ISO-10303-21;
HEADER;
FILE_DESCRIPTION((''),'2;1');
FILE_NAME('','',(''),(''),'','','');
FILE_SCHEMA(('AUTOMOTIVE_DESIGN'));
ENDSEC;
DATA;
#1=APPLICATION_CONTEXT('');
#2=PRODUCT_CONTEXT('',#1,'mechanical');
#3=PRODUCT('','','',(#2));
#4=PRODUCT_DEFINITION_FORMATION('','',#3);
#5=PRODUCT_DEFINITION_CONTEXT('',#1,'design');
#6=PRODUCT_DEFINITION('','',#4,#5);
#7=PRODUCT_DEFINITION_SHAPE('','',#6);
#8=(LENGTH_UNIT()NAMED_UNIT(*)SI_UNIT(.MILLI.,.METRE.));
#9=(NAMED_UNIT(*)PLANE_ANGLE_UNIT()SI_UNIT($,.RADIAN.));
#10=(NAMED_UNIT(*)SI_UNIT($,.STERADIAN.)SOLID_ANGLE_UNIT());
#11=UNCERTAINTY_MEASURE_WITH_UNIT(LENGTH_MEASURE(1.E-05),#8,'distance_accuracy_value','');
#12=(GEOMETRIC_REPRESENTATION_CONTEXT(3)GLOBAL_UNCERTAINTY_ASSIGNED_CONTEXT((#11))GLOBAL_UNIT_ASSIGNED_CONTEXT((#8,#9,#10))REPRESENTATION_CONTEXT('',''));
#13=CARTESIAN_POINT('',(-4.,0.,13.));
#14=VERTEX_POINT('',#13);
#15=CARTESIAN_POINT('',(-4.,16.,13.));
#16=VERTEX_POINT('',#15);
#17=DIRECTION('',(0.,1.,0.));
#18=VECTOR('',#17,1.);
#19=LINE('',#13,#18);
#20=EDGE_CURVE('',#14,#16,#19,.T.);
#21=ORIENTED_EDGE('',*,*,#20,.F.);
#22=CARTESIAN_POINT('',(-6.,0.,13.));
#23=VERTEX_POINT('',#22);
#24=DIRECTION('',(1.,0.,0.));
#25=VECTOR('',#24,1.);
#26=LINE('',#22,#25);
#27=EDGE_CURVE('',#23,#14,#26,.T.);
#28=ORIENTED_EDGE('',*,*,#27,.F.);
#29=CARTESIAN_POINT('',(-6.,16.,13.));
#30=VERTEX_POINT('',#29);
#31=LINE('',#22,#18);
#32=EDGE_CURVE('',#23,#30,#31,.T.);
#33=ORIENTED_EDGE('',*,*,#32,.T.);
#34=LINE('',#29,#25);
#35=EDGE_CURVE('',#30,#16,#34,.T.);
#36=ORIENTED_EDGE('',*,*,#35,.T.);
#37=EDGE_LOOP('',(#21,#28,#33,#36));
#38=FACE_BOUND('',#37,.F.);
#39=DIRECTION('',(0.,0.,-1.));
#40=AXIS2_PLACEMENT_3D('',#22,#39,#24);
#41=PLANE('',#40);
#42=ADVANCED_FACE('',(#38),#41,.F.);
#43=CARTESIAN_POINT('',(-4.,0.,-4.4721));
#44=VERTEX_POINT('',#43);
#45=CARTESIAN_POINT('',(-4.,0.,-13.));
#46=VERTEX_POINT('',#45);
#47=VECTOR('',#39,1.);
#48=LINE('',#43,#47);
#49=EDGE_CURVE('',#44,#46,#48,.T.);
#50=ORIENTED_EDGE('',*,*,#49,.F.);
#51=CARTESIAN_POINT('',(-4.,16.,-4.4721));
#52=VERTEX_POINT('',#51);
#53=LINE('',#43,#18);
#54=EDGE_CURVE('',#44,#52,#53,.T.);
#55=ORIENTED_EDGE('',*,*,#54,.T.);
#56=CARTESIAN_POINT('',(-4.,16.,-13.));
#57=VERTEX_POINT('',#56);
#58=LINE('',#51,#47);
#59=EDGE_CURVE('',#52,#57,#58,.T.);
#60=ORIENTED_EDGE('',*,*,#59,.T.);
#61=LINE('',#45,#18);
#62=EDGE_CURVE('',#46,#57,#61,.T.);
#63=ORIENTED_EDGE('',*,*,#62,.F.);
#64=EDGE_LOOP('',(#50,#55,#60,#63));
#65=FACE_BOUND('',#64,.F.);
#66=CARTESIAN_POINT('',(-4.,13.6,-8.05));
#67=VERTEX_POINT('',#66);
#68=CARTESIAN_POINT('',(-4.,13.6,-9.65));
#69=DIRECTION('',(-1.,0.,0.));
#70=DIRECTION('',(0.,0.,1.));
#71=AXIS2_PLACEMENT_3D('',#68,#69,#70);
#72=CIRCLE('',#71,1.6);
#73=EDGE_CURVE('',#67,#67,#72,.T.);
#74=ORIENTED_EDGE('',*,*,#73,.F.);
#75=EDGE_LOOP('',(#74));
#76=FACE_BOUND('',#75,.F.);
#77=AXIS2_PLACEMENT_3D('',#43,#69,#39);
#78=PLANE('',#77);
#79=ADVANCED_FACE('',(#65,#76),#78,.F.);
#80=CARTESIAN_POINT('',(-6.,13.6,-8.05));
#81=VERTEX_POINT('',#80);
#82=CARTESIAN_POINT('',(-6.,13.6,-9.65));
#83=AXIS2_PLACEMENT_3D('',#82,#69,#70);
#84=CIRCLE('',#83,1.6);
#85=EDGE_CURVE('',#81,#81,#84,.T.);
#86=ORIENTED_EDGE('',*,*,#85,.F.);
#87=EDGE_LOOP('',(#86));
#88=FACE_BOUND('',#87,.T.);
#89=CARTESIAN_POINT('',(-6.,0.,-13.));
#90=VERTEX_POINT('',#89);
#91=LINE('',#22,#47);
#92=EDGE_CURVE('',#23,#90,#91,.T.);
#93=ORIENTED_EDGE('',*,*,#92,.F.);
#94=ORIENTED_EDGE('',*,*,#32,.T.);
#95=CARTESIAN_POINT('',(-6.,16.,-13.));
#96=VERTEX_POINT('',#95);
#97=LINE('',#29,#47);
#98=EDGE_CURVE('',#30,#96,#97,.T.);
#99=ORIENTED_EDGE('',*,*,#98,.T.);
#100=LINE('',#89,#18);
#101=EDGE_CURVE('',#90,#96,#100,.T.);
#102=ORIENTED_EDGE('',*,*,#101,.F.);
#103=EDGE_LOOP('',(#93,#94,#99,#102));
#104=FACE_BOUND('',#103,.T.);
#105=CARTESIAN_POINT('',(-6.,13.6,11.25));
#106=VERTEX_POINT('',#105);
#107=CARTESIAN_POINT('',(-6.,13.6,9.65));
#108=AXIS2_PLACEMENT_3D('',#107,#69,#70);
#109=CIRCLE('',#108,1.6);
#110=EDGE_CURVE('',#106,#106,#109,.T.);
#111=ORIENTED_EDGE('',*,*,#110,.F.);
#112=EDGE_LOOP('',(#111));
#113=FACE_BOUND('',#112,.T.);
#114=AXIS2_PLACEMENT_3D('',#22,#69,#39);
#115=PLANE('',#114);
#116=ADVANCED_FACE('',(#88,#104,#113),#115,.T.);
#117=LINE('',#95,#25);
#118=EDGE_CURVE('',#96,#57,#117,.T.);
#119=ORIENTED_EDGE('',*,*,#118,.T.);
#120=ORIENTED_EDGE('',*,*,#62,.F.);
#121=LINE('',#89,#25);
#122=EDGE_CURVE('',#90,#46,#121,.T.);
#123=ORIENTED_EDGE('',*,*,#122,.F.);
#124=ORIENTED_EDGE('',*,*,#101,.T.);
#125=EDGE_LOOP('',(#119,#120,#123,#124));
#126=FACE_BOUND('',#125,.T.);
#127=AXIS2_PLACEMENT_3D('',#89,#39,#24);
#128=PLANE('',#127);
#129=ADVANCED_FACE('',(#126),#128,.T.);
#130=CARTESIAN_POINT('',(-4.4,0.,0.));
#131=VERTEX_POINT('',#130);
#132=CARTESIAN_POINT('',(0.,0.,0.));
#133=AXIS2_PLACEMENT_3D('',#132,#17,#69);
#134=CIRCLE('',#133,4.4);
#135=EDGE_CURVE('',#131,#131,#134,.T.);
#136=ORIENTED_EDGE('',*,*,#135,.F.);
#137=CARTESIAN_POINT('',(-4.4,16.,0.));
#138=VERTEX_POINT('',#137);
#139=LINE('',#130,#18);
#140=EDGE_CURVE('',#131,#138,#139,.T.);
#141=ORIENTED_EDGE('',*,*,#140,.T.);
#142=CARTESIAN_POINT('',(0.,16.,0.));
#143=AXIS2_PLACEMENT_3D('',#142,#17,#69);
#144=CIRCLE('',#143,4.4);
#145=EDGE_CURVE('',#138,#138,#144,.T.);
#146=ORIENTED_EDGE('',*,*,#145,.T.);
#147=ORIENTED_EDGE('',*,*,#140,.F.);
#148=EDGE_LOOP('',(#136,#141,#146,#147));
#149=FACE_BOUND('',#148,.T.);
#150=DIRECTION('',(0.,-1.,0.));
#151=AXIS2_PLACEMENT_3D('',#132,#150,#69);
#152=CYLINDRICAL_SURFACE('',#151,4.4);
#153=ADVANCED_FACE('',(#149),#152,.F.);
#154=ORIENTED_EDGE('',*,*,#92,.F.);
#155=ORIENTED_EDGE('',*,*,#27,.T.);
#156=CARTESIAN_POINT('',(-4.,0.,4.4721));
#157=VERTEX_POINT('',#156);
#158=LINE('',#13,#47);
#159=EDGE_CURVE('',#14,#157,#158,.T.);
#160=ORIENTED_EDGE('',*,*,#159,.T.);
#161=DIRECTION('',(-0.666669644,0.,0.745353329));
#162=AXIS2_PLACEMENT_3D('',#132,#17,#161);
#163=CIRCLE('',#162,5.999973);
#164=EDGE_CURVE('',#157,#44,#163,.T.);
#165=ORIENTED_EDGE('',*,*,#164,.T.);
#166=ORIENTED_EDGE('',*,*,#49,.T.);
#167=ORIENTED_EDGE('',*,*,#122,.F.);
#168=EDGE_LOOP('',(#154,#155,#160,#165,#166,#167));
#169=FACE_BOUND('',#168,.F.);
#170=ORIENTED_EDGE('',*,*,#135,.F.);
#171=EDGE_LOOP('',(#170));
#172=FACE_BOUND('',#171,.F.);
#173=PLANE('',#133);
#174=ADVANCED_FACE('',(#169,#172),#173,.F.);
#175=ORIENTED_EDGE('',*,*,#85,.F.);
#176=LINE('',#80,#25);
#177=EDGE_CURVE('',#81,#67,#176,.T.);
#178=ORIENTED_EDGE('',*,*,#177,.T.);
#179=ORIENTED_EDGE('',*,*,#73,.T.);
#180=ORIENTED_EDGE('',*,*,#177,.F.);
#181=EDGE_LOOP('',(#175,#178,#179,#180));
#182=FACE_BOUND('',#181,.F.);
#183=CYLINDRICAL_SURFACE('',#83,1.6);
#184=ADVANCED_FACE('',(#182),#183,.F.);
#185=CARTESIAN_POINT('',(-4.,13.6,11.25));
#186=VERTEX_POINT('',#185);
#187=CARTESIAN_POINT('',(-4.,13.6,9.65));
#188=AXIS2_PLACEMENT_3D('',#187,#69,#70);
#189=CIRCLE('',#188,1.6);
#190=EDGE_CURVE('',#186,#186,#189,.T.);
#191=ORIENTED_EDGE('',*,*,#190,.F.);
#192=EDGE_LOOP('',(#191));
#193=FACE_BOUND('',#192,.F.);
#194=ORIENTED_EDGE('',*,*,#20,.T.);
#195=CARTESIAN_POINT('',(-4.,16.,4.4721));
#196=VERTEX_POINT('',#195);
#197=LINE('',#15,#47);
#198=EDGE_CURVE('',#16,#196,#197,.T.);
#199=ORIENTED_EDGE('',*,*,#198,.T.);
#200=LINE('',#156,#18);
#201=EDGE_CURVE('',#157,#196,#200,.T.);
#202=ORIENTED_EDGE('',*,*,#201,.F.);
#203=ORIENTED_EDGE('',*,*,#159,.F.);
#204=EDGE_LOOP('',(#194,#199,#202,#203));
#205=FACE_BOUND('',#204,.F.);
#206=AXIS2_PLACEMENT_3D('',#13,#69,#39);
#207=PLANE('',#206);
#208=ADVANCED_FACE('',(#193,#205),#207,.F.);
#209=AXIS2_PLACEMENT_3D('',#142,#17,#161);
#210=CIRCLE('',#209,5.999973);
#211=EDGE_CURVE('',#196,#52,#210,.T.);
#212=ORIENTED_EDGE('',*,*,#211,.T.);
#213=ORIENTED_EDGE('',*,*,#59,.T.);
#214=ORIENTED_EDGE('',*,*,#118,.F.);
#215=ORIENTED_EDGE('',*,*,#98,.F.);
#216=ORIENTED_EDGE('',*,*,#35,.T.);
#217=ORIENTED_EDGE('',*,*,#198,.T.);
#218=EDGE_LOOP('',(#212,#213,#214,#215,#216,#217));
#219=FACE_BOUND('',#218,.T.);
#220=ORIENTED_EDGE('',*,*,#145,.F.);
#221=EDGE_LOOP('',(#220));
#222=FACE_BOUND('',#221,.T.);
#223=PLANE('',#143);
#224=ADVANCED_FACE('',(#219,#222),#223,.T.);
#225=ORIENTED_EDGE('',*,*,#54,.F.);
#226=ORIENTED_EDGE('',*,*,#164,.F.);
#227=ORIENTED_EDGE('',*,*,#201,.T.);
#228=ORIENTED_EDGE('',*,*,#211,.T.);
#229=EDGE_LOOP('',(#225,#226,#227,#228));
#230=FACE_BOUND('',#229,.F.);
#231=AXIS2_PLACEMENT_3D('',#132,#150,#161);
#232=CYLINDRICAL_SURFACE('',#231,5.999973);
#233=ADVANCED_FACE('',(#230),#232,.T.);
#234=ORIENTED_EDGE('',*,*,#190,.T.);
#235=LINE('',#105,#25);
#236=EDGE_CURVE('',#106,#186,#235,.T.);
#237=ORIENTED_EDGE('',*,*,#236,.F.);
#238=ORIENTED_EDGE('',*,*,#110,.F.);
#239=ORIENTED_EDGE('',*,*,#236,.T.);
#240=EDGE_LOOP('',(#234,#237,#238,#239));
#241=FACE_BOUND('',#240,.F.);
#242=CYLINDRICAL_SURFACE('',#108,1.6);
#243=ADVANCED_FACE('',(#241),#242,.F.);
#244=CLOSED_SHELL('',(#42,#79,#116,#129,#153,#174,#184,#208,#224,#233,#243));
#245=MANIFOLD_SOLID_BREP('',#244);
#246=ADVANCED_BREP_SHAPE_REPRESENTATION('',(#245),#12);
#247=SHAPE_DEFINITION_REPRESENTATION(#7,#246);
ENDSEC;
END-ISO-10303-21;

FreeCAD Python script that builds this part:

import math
import FreeCAD as App
import Part
import Sketcher

V = App.Vector

doc = App.newDocument("Part")
body = doc.addObject("PartDesign::Body", "Body")

sketch1 = body.newObject("Sketcher::SketchObject", "Sketch")
sketch1.AttachmentSupport = (doc.getObject("XZ_Plane"), [""])
sketch1.MapMode = "FlatFace"
sketch1.addGeometry([
    Part.LineSegment(V(-6, -13, 0), V(-6, 13, 0)),
    Part.LineSegment(V(-6, 13, 0), V(-4, 13, 0)),
    Part.LineSegment(V(-4, 13, 0), V(-4, 4.5, 0)),
    Part.ArcOfCircle(Part.Circle(V(0, 0, 0), V(0, 0, 1), 6), math.radians(-132), math.radians(132)),
    Part.LineSegment(V(-4, -4.5, 0), V(-4, -13, 0)),
    Part.LineSegment(V(-4, -13, 0), V(-6, -13, 0)),
    Part.Circle(V(0, 0, 0), V(0, 0, 1), 4.4),
], False)
sketch1.addConstraint([
    Sketcher.Constraint("Coincident", 0, 2, 1, 1),
    Sketcher.Constraint("Coincident", 1, 2, 2, 1),
    Sketcher.Constraint("Coincident", 2, 2, 3, 2),
    Sketcher.Constraint("Coincident", 3, 1, 4, 1),
    Sketcher.Constraint("Coincident", 4, 2, 5, 1),
    Sketcher.Constraint("Coincident", 5, 2, 0, 1),
    Sketcher.Constraint("Vertical", 0),
    Sketcher.Constraint("Horizontal", 1),
    Sketcher.Constraint("Vertical", 2),
    Sketcher.Constraint("Vertical", 4),
    Sketcher.Constraint("Horizontal", 5),
    Sketcher.Constraint("Coincident", 3, 3, -1, 1),
    Sketcher.Constraint("Coincident", 6, 3, -1, 1),
    Sketcher.Constraint("Symmetric", 1, 2, 4, 2, -1),
    Sketcher.Constraint("Diameter", 6, 8.8),
    Sketcher.Constraint("DistanceX", 1, 1, 1, 2, 2.0),
    Sketcher.Constraint("DistanceY", 0, 1, 0, 2, 26.0),
    Sketcher.Constraint("Radius", 3, 6.0),
    Sketcher.Constraint("DistanceX", 0, 2, -1, 1, 6.0),
])
pad1 = body.newObject("PartDesign::Pad", "Pad")
pad1.Profile = sketch1
pad1.Length = 16
pad1.Reversed = True

sketch2 = body.newObject("Sketcher::SketchObject", "Sketch001")
sketch2.AttachmentSupport = (doc.getObject("YZ_Plane"), [""])
sketch2.MapMode = "FlatFace"
sketch2.AttachmentOffset = App.Placement(V(0, 0, -6), App.Rotation())
sketch2.addGeometry([
    Part.Circle(V(13.6, -9.7, 0), V(0, 0, 1), 1.6),
    Part.Circle(V(13.6, 9.7, 0), V(0, 0, 1), 1.6),
], False)
sketch2.addConstraint([
    Sketcher.Constraint("Equal", 0, 1),
    Sketcher.Constraint("Symmetric", 0, 3, 1, 3, -1),
    Sketcher.Constraint("Diameter", 0, 3.2),
    Sketcher.Constraint("DistanceX", -1, 1, 0, 3, 13.6),
    Sketcher.Constraint("DistanceY", 0, 3, 1, 3, 19.3),
])
pocket1 = body.newObject("PartDesign::Pocket", "Pocket")
pocket1.Profile = sketch2
pocket1.Length = 16
pocket1.Reversed = True

doc.recompute()
